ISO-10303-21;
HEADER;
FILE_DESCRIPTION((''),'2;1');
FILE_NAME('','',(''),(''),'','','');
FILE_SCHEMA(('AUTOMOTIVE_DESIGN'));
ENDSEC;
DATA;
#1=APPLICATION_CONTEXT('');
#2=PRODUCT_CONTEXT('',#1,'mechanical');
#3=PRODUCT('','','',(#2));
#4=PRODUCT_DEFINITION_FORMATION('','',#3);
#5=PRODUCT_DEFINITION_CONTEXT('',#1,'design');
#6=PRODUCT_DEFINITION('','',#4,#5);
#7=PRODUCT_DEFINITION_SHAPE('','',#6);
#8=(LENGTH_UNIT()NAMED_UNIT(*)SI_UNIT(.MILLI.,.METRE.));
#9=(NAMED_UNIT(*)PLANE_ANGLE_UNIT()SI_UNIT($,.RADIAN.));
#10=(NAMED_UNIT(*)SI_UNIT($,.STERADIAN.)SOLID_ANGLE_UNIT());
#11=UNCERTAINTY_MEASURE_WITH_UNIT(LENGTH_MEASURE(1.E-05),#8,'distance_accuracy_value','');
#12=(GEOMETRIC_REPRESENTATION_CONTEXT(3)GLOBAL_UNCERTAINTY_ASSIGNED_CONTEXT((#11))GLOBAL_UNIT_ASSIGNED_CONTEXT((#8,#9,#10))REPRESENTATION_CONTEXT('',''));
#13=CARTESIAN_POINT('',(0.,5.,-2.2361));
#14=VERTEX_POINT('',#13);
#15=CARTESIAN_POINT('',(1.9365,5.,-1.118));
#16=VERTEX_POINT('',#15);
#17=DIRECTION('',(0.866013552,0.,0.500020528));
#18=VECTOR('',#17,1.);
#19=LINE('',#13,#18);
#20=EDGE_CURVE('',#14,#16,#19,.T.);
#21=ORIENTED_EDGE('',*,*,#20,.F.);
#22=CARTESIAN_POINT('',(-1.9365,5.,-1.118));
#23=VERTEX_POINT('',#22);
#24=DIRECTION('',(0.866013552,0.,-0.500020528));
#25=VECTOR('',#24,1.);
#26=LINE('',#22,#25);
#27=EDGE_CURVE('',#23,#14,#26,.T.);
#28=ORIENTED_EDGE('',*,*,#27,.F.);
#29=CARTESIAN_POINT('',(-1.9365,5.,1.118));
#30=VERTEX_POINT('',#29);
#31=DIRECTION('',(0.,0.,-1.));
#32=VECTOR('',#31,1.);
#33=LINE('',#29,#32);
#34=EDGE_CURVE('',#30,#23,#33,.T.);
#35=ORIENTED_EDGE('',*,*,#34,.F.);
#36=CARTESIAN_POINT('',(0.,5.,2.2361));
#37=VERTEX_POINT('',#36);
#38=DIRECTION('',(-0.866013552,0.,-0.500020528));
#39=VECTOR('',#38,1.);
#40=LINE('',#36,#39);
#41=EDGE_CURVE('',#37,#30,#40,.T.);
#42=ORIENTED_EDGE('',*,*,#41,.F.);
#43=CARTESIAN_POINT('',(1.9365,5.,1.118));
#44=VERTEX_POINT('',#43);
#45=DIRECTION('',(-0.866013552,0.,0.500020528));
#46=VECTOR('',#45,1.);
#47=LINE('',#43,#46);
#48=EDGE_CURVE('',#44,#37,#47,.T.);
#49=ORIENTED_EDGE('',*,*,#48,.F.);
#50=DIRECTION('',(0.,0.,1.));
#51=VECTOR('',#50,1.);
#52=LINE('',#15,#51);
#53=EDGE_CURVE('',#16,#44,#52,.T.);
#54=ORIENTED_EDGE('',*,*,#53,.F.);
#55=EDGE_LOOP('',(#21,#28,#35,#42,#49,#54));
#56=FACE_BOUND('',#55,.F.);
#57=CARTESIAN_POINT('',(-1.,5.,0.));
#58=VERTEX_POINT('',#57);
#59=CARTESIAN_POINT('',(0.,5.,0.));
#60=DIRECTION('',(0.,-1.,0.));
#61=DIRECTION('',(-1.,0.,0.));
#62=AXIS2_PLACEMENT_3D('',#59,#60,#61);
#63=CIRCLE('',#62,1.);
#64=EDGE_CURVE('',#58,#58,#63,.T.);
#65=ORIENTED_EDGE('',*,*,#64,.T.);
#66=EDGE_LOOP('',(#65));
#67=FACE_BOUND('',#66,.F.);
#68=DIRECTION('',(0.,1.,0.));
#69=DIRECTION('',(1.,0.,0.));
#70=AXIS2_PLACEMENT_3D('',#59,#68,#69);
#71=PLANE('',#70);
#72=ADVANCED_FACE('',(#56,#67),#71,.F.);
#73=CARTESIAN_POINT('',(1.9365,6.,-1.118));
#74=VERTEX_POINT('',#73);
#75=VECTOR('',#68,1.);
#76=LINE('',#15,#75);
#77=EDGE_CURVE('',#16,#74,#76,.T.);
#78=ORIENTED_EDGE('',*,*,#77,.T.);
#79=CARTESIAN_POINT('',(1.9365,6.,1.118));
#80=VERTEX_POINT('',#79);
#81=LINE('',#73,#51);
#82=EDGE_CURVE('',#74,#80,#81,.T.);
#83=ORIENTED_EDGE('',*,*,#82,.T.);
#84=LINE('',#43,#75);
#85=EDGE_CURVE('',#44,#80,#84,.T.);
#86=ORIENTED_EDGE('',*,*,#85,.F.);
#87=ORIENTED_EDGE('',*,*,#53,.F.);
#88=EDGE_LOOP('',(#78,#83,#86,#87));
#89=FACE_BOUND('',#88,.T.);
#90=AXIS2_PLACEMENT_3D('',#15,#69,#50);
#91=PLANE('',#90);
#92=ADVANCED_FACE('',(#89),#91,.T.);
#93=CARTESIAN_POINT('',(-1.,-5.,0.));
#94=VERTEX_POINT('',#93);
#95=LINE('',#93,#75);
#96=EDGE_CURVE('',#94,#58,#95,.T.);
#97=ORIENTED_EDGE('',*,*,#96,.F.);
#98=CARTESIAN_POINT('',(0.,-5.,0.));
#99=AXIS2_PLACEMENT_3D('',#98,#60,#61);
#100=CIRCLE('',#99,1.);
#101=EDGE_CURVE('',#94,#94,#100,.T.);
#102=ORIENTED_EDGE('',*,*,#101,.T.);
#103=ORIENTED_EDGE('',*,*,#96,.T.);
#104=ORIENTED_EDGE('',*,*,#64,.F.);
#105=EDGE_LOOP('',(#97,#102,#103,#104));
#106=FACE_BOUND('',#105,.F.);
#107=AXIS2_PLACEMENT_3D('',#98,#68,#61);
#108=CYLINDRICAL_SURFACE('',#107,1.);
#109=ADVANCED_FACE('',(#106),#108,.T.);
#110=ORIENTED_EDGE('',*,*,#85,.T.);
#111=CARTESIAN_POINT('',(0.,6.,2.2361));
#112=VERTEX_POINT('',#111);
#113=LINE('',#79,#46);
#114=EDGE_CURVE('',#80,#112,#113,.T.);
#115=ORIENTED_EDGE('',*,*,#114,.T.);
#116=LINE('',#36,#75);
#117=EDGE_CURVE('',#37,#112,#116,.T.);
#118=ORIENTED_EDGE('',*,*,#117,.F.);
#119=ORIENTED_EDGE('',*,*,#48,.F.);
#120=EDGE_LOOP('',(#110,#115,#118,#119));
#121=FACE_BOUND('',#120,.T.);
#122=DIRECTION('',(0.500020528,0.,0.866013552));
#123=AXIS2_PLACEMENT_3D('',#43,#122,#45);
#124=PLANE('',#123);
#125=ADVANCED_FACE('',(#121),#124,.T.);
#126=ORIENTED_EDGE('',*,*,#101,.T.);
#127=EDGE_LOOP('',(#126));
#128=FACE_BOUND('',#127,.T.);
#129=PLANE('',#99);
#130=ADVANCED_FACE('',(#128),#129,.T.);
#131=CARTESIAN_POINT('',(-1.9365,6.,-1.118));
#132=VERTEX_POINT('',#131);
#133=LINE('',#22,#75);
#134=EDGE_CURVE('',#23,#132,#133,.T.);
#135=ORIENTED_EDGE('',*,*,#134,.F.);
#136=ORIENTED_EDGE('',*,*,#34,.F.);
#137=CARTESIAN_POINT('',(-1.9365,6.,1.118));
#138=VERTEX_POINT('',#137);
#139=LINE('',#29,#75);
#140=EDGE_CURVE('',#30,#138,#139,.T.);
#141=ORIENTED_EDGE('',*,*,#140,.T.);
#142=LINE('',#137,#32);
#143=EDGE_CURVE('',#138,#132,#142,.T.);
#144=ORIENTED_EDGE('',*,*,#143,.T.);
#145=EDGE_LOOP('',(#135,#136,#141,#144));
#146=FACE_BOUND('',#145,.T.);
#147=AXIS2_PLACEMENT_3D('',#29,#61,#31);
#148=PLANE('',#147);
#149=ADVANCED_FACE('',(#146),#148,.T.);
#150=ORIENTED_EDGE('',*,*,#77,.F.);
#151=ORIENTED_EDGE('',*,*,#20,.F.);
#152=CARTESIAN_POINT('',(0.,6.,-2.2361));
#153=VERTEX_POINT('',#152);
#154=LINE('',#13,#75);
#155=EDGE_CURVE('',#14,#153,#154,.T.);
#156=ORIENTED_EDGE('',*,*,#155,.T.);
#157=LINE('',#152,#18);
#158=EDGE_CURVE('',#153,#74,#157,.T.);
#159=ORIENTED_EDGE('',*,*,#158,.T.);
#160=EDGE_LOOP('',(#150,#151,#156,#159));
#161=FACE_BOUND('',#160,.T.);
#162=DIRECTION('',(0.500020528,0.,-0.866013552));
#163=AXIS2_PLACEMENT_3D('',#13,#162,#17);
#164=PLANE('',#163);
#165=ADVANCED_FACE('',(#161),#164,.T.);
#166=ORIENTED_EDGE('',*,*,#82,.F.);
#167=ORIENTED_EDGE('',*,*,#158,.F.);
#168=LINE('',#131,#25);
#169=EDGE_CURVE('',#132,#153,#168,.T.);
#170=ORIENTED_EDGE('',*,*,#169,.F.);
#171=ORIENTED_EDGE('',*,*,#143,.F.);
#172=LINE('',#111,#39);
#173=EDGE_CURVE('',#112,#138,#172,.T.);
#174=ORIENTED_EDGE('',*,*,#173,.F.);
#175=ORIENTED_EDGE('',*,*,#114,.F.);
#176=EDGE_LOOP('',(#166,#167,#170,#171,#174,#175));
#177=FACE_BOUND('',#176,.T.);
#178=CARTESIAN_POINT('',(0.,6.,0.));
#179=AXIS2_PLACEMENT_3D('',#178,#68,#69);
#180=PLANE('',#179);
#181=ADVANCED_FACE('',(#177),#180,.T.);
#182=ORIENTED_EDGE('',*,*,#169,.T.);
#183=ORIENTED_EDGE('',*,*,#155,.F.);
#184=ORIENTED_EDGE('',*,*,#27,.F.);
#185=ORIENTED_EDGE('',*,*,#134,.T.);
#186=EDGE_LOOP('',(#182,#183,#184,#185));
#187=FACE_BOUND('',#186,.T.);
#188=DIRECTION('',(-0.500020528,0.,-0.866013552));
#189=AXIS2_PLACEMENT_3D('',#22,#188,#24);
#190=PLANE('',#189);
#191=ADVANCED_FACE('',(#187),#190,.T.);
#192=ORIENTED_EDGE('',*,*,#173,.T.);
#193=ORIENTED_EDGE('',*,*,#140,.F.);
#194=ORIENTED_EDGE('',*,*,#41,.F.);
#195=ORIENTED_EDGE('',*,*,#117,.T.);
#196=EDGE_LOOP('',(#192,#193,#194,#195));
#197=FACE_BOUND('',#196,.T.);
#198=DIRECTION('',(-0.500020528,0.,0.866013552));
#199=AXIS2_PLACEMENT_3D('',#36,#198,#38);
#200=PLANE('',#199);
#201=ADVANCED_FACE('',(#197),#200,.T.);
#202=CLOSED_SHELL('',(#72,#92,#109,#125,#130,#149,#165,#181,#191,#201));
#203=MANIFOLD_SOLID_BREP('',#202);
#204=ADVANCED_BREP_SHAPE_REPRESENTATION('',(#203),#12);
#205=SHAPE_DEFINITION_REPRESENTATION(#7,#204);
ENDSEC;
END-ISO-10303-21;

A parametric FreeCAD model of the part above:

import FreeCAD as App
import Part
import Sketcher
Q = App.Units.Quantity


def add_polygon(sketch, points):
    """Adds a closed chain of lines whose ends are joined by coincident constraints."""
    first, n = sketch.GeometryCount, len(points)
    for a, b in zip(points, points[1:] + points[:1]):
        sketch.addGeometry(Part.LineSegment(App.Vector(*a, 0), App.Vector(*b, 0)), False)
    for i in range(n):
        sketch.addConstraint(Sketcher.Constraint("Coincident", first + i, 2, first + (i + 1) % n, 1))

doc = App.newDocument("Part")
body = doc.addObject("PartDesign::Body", "Body")

# Sketch on XY plane
sketch1 = doc.addObject("Sketcher::SketchObject", "Sketch")
body.addObject(sketch1)
sketch1.AttachmentSupport = (doc.XY_Plane, [""])
sketch1.MapMode = "FlatFace"
add_polygon(sketch1, [(0, -5), (0, 5), (-1, 5), (-1, -5)])  # lines 0-3
sketch1.addConstraint([
    Sketcher.Constraint("Vertical", 0),
    Sketcher.Constraint("Horizontal", 1),
    Sketcher.Constraint("Vertical", 2),
    Sketcher.Constraint("Horizontal", 3),
    Sketcher.Constraint("Symmetric", 0, 2, 3, 2, -1, 1),
    Sketcher.Constraint("DistanceX", 1, 2, 1, 1, Q("1 mm")),
    Sketcher.Constraint("DistanceY", 0, 1, 0, 2, Q("10 mm")),
])
revolution = doc.addObject("PartDesign::Revolution", "Revolution")
body.addObject(revolution)
revolution.Profile = sketch1
revolution.ReferenceAxis = (sketch1, ["V_Axis"])
revolution.Angle = 360

# Sketch on XZ plane
sketch2 = doc.addObject("Sketcher::SketchObject", "Sketch001")
body.addObject(sketch2)
sketch2.AttachmentSupport = (doc.XZ_Plane, [""])
sketch2.MapMode = "FlatFace"
sketch2.AttachmentOffset = App.Placement(App.Vector(0, 0, -5), App.Rotation())
add_polygon(sketch2, [(0, 2.2), (1.9, 1.1), (1.9, -1.1), (0, -2.2), (-1.9, -1.1), (-1.9, 1.1)])  # lines 0-5
sketch2.addConstraint([
    Sketcher.Constraint("Vertical", 1),
    Sketcher.Constraint("Vertical", 4),
    Sketcher.Constraint("Symmetric", 0, 2, 3, 2, -1, 1),
    Sketcher.Constraint("Symmetric", 2, 2, 5, 2, -1, 1),
    Sketcher.Constraint("PointOnObject", 2, 2, -2),
    Sketcher.Constraint("Parallel", 2, 5),
    Sketcher.Constraint("Horizontal", 1, 2, 3, 2),
    Sketcher.Constraint("DistanceX", -1, 1, 0, 2, Q("1.9365 mm")),
    Sketcher.Constraint("DistanceY", 1, 2, 1, 1, Q("2.236 mm")),
    Sketcher.Constraint("Distance", 0, Q("2.236 mm")),
])
pad1 = doc.addObject("PartDesign::Pad", "Pad")
body.addObject(pad1)
pad1.Profile = sketch2
pad1.Length = 1
pad1.Reversed = True

doc.recompute()
